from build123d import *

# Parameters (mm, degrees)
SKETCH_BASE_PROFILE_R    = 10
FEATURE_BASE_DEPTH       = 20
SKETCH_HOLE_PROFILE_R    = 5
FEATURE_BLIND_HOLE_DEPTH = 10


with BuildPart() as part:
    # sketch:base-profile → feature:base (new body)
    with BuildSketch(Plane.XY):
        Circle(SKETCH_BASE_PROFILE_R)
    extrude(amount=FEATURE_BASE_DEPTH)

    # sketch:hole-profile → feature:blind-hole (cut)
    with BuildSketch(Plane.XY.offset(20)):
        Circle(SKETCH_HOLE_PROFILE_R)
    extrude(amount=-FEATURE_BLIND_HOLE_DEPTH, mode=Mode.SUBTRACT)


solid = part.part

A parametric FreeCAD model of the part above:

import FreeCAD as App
import Part
import Sketcher

V = App.Vector

doc = App.newDocument("Part")
params = doc.addObject("Spreadsheet::Sheet", "Params")
for row, (alias, value) in enumerate([
    ("sketch1_diameter", "20 mm"),
    ("pad1_length", "20 mm"),
    ("sketch2_diameter", "10 mm"),
    ("pocket1_length", "10 mm"),
], start=1):
    params.set(f"A{row}", alias)
    params.set(f"B{row}", "=" + value)
    params.setAlias(f"B{row}", alias)

body = doc.addObject("PartDesign::Body", "Body")

sketch1 = body.newObject("Sketcher::SketchObject", "Sketch")
sketch1.AttachmentSupport = (doc.getObject("XY_Plane"), [""])
sketch1.MapMode = "FlatFace"
sketch1.addGeometry(Part.Circle(V(0, 0, 0), V(0, 0, 1), 10), False)
sketch1.addConstraint([
    Sketcher.Constraint("Coincident", 0, 3, -1, 1),
    Sketcher.Constraint("Diameter", 0, 20.0),
])
sketch1.setExpression("Constraints[1]", "Params.sketch1_diameter")
pad1 = body.newObject("PartDesign::Pad", "Pad")
pad1.Profile = sketch1
pad1.setExpression("Length", "Params.pad1_length")

sketch2 = body.newObject("Sketcher::SketchObject", "Sketch001")
sketch2.AttachmentSupport = (doc.getObject("XY_Plane"), [""])
sketch2.MapMode = "FlatFace"
sketch2.AttachmentOffset = App.Placement(V(0, 0, 20), App.Rotation())
sketch2.addGeometry(Part.Circle(V(0, 0, 0), V(0, 0, 1), 5), False)
sketch2.addConstraint([
    Sketcher.Constraint("Coincident", 0, 3, -1, 1),
    Sketcher.Constraint("Diameter", 0, 10.0),
])
sketch2.setExpression("Constraints[1]", "Params.sketch2_diameter")
pocket1 = body.newObject("PartDesign::Pocket", "Pocket")
pocket1.Profile = sketch2
pocket1.setExpression("Length", "Params.pocket1_length")

doc.recompute()
